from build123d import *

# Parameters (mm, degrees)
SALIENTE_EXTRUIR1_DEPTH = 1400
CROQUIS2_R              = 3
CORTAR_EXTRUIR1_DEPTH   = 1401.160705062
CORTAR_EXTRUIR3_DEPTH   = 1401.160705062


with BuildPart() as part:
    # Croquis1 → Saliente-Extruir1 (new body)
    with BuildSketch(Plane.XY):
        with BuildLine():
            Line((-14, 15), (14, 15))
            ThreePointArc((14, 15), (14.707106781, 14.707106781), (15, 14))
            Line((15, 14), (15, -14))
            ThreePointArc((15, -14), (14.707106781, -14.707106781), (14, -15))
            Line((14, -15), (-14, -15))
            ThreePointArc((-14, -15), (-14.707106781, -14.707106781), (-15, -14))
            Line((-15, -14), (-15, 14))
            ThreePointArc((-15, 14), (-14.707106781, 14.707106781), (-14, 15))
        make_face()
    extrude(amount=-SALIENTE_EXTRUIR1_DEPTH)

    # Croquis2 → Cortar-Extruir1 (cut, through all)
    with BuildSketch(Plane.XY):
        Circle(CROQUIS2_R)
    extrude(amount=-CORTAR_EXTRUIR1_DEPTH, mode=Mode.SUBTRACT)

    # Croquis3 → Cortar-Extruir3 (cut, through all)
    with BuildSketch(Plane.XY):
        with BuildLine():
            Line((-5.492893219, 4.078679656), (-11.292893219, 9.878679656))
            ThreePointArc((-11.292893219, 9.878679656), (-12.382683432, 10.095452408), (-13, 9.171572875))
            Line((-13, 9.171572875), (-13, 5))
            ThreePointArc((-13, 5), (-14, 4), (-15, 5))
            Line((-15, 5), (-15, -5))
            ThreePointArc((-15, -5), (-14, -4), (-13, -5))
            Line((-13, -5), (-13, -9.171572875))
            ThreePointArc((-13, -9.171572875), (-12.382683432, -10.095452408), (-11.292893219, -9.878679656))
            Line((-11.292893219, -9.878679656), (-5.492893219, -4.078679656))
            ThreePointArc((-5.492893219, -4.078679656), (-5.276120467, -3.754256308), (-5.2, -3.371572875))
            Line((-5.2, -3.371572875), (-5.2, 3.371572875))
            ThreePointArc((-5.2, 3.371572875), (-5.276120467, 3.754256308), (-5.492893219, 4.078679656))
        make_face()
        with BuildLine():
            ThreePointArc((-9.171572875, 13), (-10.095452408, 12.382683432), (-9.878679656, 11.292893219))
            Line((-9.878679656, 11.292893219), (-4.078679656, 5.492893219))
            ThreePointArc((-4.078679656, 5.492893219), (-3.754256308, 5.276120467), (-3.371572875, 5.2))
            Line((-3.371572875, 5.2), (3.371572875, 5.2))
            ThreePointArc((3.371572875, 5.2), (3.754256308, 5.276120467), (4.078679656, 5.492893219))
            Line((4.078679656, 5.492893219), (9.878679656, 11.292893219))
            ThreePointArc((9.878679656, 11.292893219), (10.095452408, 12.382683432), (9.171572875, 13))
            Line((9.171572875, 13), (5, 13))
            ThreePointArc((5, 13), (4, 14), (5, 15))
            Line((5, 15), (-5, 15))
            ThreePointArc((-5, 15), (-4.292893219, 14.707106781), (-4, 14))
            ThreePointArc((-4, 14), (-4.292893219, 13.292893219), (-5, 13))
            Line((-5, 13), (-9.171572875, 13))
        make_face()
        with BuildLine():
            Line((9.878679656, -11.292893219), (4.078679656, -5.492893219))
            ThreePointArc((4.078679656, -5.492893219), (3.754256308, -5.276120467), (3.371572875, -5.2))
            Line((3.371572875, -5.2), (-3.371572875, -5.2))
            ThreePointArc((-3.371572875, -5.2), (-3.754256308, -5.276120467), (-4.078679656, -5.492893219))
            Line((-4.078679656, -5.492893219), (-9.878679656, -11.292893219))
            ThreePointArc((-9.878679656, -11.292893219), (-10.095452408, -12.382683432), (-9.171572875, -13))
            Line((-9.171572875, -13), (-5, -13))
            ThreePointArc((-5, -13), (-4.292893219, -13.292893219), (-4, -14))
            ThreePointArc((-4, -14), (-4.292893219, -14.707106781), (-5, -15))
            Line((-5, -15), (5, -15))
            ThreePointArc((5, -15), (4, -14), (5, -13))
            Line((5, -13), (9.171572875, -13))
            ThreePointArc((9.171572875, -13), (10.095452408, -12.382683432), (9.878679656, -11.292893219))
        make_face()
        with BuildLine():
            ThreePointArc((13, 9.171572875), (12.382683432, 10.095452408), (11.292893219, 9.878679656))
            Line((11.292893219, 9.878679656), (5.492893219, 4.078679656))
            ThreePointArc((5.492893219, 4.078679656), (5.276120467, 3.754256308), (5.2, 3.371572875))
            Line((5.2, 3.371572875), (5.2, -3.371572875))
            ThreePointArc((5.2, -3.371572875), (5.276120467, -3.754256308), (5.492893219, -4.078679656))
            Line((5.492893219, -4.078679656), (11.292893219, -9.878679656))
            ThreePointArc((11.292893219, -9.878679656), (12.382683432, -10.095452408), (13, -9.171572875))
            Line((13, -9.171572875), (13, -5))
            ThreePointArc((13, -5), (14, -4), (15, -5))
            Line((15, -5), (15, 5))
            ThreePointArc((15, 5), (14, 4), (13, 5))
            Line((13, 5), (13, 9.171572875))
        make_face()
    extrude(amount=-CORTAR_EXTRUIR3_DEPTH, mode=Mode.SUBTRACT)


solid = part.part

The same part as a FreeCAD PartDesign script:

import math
import FreeCAD as App
import Part
import Sketcher
from FreeCAD import Vector
Q = App.Units.Quantity

doc = App.newDocument("Part")
body = doc.addObject("PartDesign::Body", "Body")

# Sketch on XY plane
sketch1 = body.newObject("Sketcher::SketchObject", "Sketch")
sketch1.AttachmentSupport = (doc.getObject("XY_Plane"), [""])
sketch1.MapMode = "FlatFace"
sketch1.addGeometry([
    Part.LineSegment(Vector(14, 15, 0), Vector(-14, 15, 0)),  # 0
    Part.ArcOfCircle(Part.Circle(Vector(-14, 14, 0), Vector(0, 0, 1), 1), math.radians(90), math.radians(180)),  # 1
    Part.LineSegment(Vector(-15, 14, 0), Vector(-15, -14, 0)),  # 2
    Part.ArcOfCircle(Part.Circle(Vector(-14, -14, 0), Vector(0, 0, 1), 1), math.radians(-180), math.radians(-90)),  # 3
    Part.LineSegment(Vector(-14, -15, 0), Vector(14, -15, 0)),  # 4
    Part.ArcOfCircle(Part.Circle(Vector(14, -14, 0), Vector(0, 0, 1), 1), math.radians(-90), math.radians(0)),  # 5
    Part.LineSegment(Vector(15, -14, 0), Vector(15, 14, 0)),  # 6
    Part.ArcOfCircle(Part.Circle(Vector(14, 14, 0), Vector(0, 0, 1), 1), math.radians(0), math.radians(90)),  # 7
], False)
sketch1.addConstraint([
    Sketcher.Constraint("Tangent", 0, 2, 1, 1),
    Sketcher.Constraint("Tangent", 1, 2, 2, 1),
    Sketcher.Constraint("Tangent", 2, 2, 3, 1),
    Sketcher.Constraint("Tangent", 3, 2, 4, 1),
    Sketcher.Constraint("Tangent", 4, 2, 5, 1),
    Sketcher.Constraint("Tangent", 5, 2, 6, 1),
    Sketcher.Constraint("Tangent", 6, 2, 7, 1),
    Sketcher.Constraint("Tangent", 7, 2, 0, 1),
    Sketcher.Constraint("Horizontal", 0),
    Sketcher.Constraint("Vertical", 2),
    Sketcher.Constraint("Horizontal", 4),
    Sketcher.Constraint("Vertical", 6),
    Sketcher.Constraint("Equal", 1, 3),
    Sketcher.Constraint("Equal", 3, 5),
    Sketcher.Constraint("Equal", 5, 7),
    Sketcher.Constraint("Symmetric", 1, 3, 5, 3, -1, 1),
    Sketcher.Constraint("Equal", 4, 2),
    Sketcher.Constraint("Radius", 1, Q("1 mm")),
    Sketcher.Constraint("DistanceX", 0, 2, 0, 1, Q("28 mm")),
])
pad1 = body.newObject("PartDesign::Pad", "Pad")
pad1.Profile = sketch1
pad1.Length = 1400
pad1.Reversed = True

# Sketch on XY plane
sketch2 = body.newObject("Sketcher::SketchObject", "Sketch001")
sketch2.AttachmentSupport = (doc.getObject("XY_Plane"), [""])
sketch2.MapMode = "FlatFace"
sketch2.addGeometry(Part.Circle(Vector(0, 0, 0), Vector(0, 0, 1), 3), False)
sketch2.addConstraint([
    Sketcher.Constraint("Coincident", 0, 3, -1, 1),
    Sketcher.Constraint("Diameter", 0, Q("6 mm")),
])
pocket1 = body.newObject("PartDesign::Pocket", "Pocket")
pocket1.Profile = sketch2
pocket1.Type = "ThroughAll"

# Sketch on XY plane
sketch3 = body.newObject("Sketcher::SketchObject", "Sketch002")
sketch3.AttachmentSupport = (doc.getObject("XY_Plane"), [""])
sketch3.MapMode = "FlatFace"
sketch3.addGeometry([
    Part.LineSegment(Vector(-5.5, 4.1, 0), Vector(-11.3, 9.9, 0)),  # 0
    Part.ArcOfCircle(Part.Circle(Vector(-12, 9.2, 0), Vector(0, 0, 1), 1), math.radians(45), math.radians(180)),  # 1
    Part.LineSegment(Vector(-13, 9.2, 0), Vector(-13, 5, 0)),  # 2
    Part.ArcOfCircle(Part.Circle(Vector(-14, 5, 0), Vector(0, 0, 1), 1), math.radians(180), math.radians(360)),  # 3
    Part.LineSegment(Vector(-15, 5, 0), Vector(-15, -5, 0)),  # 4
    Part.ArcOfCircle(Part.Circle(Vector(-14, -5, 0), Vector(0, 0, 1), 1), math.radians(0), math.radians(180)),  # 5
    Part.LineSegment(Vector(-13, -5, 0), Vector(-13, -9.2, 0)),  # 6
    Part.ArcOfCircle(Part.Circle(Vector(-12, -9.2, 0), Vector(0, 0, 1), 1), math.radians(180), math.radians(315)),  # 7
    Part.LineSegment(Vector(-11.3, -9.9, 0), Vector(-5.5, -4.1, 0)),  # 8
    Part.ArcOfCircle(Part.Circle(Vector(-6.2, -3.4, 0), Vector(0, 0, 1), 1), math.radians(-45), math.radians(0)),  # 9
    Part.LineSegment(Vector(-5.2, -3.4, 0), Vector(-5.2, 3.4, 0)),  # 10
    Part.ArcOfCircle(Part.Circle(Vector(-6.2, 3.4, 0), Vector(0, 0, 1), 1), math.radians(0), math.radians(45)),  # 11
    Part.ArcOfCircle(Part.Circle(Vector(-9.2, 12, 0), Vector(0, 0, 1), 1), math.radians(90), math.radians(225)),  # 12
    Part.LineSegment(Vector(-9.9, 11.3, 0), Vector(-4.1, 5.5, 0)),  # 13
    Part.ArcOfCircle(Part.Circle(Vector(-3.4, 6.2, 0), Vector(0, 0, 1), 1), math.radians(-135), math.radians(-90)),  # 14
    Part.LineSegment(Vector(-3.4, 5.2, 0), Vector(3.4, 5.2, 0)),  # 15
    Part.ArcOfCircle(Part.Circle(Vector(3.4, 6.2, 0), Vector(0, 0, 1), 1), math.radians(-90), math.radians(-45)),  # 16
    Part.LineSegment(Vector(4.1, 5.5, 0), Vector(9.9, 11.3, 0)),  # 17
    Part.ArcOfCircle(Part.Circle(Vector(9.2, 12, 0), Vector(0, 0, 1), 1), math.radians(-45), math.radians(90)),  # 18
    Part.LineSegment(Vector(9.2, 13, 0), Vector(5, 13, 0)),  # 19
    Part.ArcOfCircle(Part.Circle(Vector(5, 14, 0), Vector(0, 0, 1), 1), math.radians(90), math.radians(270)),  # 20
    Part.LineSegment(Vector(5, 15, 0), Vector(-5, 15, 0)),  # 21
    Part.ArcOfCircle(Part.Circle(Vector(-5, 14, 0), Vector(0, 0, 1), 1), math.radians(0), math.radians(90)),  # 22
    Part.ArcOfCircle(Part.Circle(Vector(-5, 14, 0), Vector(0, 0, 1), 1), math.radians(-90), math.radians(0)),  # 23
    Part.LineSegment(Vector(-5, 13, 0), Vector(-9.2, 13, 0)),  # 24
    Part.LineSegment(Vector(9.9, -11.3, 0), Vector(4.1, -5.5, 0)),  # 25
    Part.ArcOfCircle(Part.Circle(Vector(3.4, -6.2, 0), Vector(0, 0, 1), 1), math.radians(45), math.radians(90)),  # 26
    Part.LineSegment(Vector(3.4, -5.2, 0), Vector(-3.4, -5.2, 0)),  # 27
    Part.ArcOfCircle(Part.Circle(Vector(-3.4, -6.2, 0), Vector(0, 0, 1), 1), math.radians(90), math.radians(135)),  # 28
    Part.LineSegment(Vector(-4.1, -5.5, 0), Vector(-9.9, -11.3, 0)),  # 29
    Part.ArcOfCircle(Part.Circle(Vector(-9.2, -12, 0), Vector(0, 0, 1), 1), math.radians(135), math.radians(270)),  # 30
    Part.LineSegment(Vector(-9.2, -13, 0), Vector(-5, -13, 0)),  # 31
    Part.ArcOfCircle(Part.Circle(Vector(-5, -14, 0), Vector(0, 0, 1), 1), math.radians(0), math.radians(90)),  # 32
    Part.ArcOfCircle(Part.Circle(Vector(-5, -14, 0), Vector(0, 0, 1), 1), math.radians(-90), math.radians(0)),  # 33
    Part.LineSegment(Vector(-5, -15, 0), Vector(5, -15, 0)),  # 34
    Part.ArcOfCircle(Part.Circle(Vector(5, -14, 0), Vector(0, 0, 1), 1), math.radians(90), math.radians(270)),  # 35
    Part.LineSegment(Vector(5, -13, 0), Vector(9.2, -13, 0)),  # 36
    Part.ArcOfCircle(Part.Circle(Vector(9.2, -12, 0), Vector(0, 0, 1), 1), math.radians(-90), math.radians(45)),  # 37
    Part.ArcOfCircle(Part.Circle(Vector(12, 9.2, 0), Vector(0, 0, 1), 1), math.radians(0), math.radians(135)),  # 38
    Part.LineSegment(Vector(11.3, 9.9, 0), Vector(5.5, 4.1, 0)),  # 39
    Part.ArcOfCircle(Part.Circle(Vector(6.2, 3.4, 0), Vector(0, 0, 1), 1), math.radians(135), math.radians(180)),  # 40
    Part.LineSegment(Vector(5.2, 3.4, 0), Vector(5.2, -3.4, 0)),  # 41
    Part.ArcOfCircle(Part.Circle(Vector(6.2, -3.4, 0), Vector(0, 0, 1), 1), math.radians(180), math.radians(225)),  # 42
    Part.LineSegment(Vector(5.5, -4.1, 0), Vector(11.3, -9.9, 0)),  # 43
    Part.ArcOfCircle(Part.Circle(Vector(12, -9.2, 0), Vector(0, 0, 1), 1), math.radians(-135), math.radians(0)),  # 44
    Part.LineSegment(Vector(13, -9.2, 0), Vector(13, -5, 0)),  # 45
    Part.ArcOfCircle(Part.Circle(Vector(14, -5, 0), Vector(0, 0, 1), 1), math.radians(0), math.radians(180)),  # 46
    Part.LineSegment(Vector(15, -5, 0), Vector(15, 5, 0)),  # 47
    Part.ArcOfCircle(Part.Circle(Vector(14, 5, 0), Vector(0, 0, 1), 1), math.radians(180), math.radians(360)),  # 48
    Part.LineSegment(Vector(13, 5, 0), Vector(13, 9.2, 0)),  # 49
], False)
sketch3.addConstraint([
    Sketcher.Constraint("Tangent", 0, 2, 1, 1),
    Sketcher.Constraint("Tangent", 1, 2, 2, 1),
    Sketcher.Constraint("Tangent", 2, 2, 3, 2),
    Sketcher.Constraint("Tangent", 3, 1, 4, 1),
    Sketcher.Constraint("Tangent", 4, 2, 5, 2),
    Sketcher.Constraint("Tangent", 5, 1, 6, 1),
    Sketcher.Constraint("Tangent", 6, 2, 7, 1),
    Sketcher.Constraint("Tangent", 7, 2, 8, 1),
    Sketcher.Constraint("Tangent", 8, 2, 9, 1),
    Sketcher.Constraint("Tangent", 9, 2, 10, 1),
    Sketcher.Constraint("Tangent", 10, 2, 11, 1),
    Sketcher.Constraint("Tangent", 11, 2, 0, 1),
    Sketcher.Constraint("Tangent", 12, 2, 13, 1),
    Sketcher.Constraint("Tangent", 13, 2, 14, 1),
    Sketcher.Constraint("Tangent", 14, 2, 15, 1),
    Sketcher.Constraint("Tangent", 15, 2, 16, 1),
    Sketcher.Constraint("Tangent", 16, 2, 17, 1),
    Sketcher.Constraint("Tangent", 17, 2, 18, 1),
    Sketcher.Constraint("Tangent", 18, 2, 19, 1),
    Sketcher.Constraint("Tangent", 19, 2, 20, 2),
    Sketcher.Constraint("Tangent", 20, 1, 21, 1),
    Sketcher.Constraint("Tangent", 21, 2, 22, 2),
    Sketcher.Constraint("Tangent", 22, 1, 23, 2),
    Sketcher.Constraint("Tangent", 23, 1, 24, 1),
    Sketcher.Constraint("Tangent", 24, 2, 12, 1),
    Sketcher.Constraint("Tangent", 25, 2, 26, 1),
    Sketcher.Constraint("Tangent", 26, 2, 27, 1),
    Sketcher.Constraint("Tangent", 27, 2, 28, 1),
    Sketcher.Constraint("Tangent", 28, 2, 29, 1),
    Sketcher.Constraint("Tangent", 29, 2, 30, 1),
    Sketcher.Constraint("Tangent", 30, 2, 31, 1),
    Sketcher.Constraint("Tangent", 31, 2, 32, 2),
    Sketcher.Constraint("Tangent", 32, 1, 33, 2),
    Sketcher.Constraint("Tangent", 33, 1, 34, 1),
    Sketcher.Constraint("Tangent", 34, 2, 35, 2),
    Sketcher.Constraint("Tangent", 35, 1, 36, 1),
    Sketcher.Constraint("Tangent", 36, 2, 37, 1),
    Sketcher.Constraint("Tangent", 37, 2, 25, 1),
    Sketcher.Constraint("Tangent", 38, 2, 39, 1),
    Sketcher.Constraint("Tangent", 39, 2, 40, 1),
    Sketcher.Constraint("Tangent", 40, 2, 41, 1),
    Sketcher.Constraint("Tangent", 41, 2, 42, 1),
    Sketcher.Constraint("Tangent", 42, 2, 43, 1),
    Sketcher.Constraint("Tangent", 43, 2, 44, 1),
    Sketcher.Constraint("Tangent", 44, 2, 45, 1),
    Sketcher.Constraint("Tangent", 45, 2, 46, 2),
    Sketcher.Constraint("Tangent", 46, 1, 47, 1),
    Sketcher.Constraint("Tangent", 47, 2, 48, 2),
    Sketcher.Constraint("Tangent", 48, 1, 49, 1),
    Sketcher.Constraint("Tangent", 49, 2, 38, 1),
    Sketcher.Constraint("Vertical", 2),
    Sketcher.Constraint("Vertical", 4),
    Sketcher.Constraint("Vertical", 6),
    Sketcher.Constraint("Vertical", 10),
    Sketcher.Constraint("Horizontal", 15),
    Sketcher.Constraint("Horizontal", 19),
    Sketcher.Constraint("Horizontal", 21),
    Sketcher.Constraint("Horizontal", 24),
    Sketcher.Constraint("Horizontal", 27),
    Sketcher.Constraint("Horizontal", 31),
    Sketcher.Constraint("Horizontal", 34),
    Sketcher.Constraint("Horizontal", 36),
    Sketcher.Constraint("Vertical", 41),
    Sketcher.Constraint("Vertical", 45),
    Sketcher.Constraint("Vertical", 47),
    Sketcher.Constraint("Vertical", 49),
    Sketcher.Constraint("Equal", 1, 3),
    Sketcher.Constraint("Equal", 3, 5),
    Sketcher.Constraint("Equal", 5, 7),
    Sketcher.Constraint("Equal", 7, 9),
    Sketcher.Constraint("Equal", 9, 11),
    Sketcher.Constraint("Equal", 11, 12),
    Sketcher.Constraint("Equal", 12, 14),
    Sketcher.Constraint("Equal", 14, 16),
    Sketcher.Constraint("Equal", 16, 18),
    Sketcher.Constraint("Equal", 18, 20),
    Sketcher.Constraint("Equal", 20, 22),
    Sketcher.Constraint("Equal", 22, 23),
    Sketcher.Constraint("Equal", 23, 26),
    Sketcher.Constraint("Equal", 26, 28),
    Sketcher.Constraint("Equal", 28, 30),
    Sketcher.Constraint("Equal", 30, 32),
    Sketcher.Constraint("Equal", 32, 33),
    Sketcher.Constraint("Equal", 33, 35),
    Sketcher.Constraint("Equal", 35, 37),
    Sketcher.Constraint("Equal", 37, 38),
    Sketcher.Constraint("Equal", 38, 40),
    Sketcher.Constraint("Equal", 40, 42),
    Sketcher.Constraint("Equal", 42, 44),
    Sketcher.Constraint("Equal", 44, 46),
    Sketcher.Constraint("Equal", 46, 48),
    Sketcher.Constraint("Symmetric", 14, 3, 26, 3, -1, 1),
    Sketcher.Constraint("Symmetric", 18, 3, 30, 3, -1, 1),
    Sketcher.Constraint("Symmetric", 7, 3, 38, 3, -1, 1),
    Sketcher.Constraint("Symmetric", 9, 3, 40, 3, -1, 1),
    Sketcher.Constraint("Symmetric", 11, 2, 42, 2, -1, 1),
    Sketcher.Constraint("Symmetric", 13, 2, 16, 2, -2),
    Sketcher.Constraint("Symmetric", 25, 2, 28, 2, -2),
    Sketcher.Constraint("Symmetric", 0, 2, 38, 2, -2),
    Sketcher.Constraint("Symmetric", 22, 1, 32, 1, -1),
    Sketcher.Constraint("Perpendicular", 0, 8),
    Sketcher.Constraint("Perpendicular", 8, 13),
    Sketcher.Constraint("Horizontal", 5, 3, 46, 3),
    Sketcher.Constraint("Horizontal", 3, 3, 48, 3),
    Sketcher.Constraint("Horizontal", 23, 3, 22, 1),
    Sketcher.Constraint("Vertical", 20, 3, 35, 3),
    Sketcher.Constraint("Equal", 19, 24),
    Sketcher.Constraint("Equal", 36, 2),
    Sketcher.Constraint("Equal", 34, 4),
    Sketcher.Constraint("Equal", 2, 6),
    Sketcher.Constraint("Equal", 27, 10),
    Sketcher.Constraint("Radius", 1, Q("1 mm")),
    Sketcher.Constraint("DistanceX", 21, 2, 21, 1, Q("10 mm")),
    Sketcher.Constraint("DistanceX", 1, 3, -1, 1, Q("12 mm")),
    Sketcher.Constraint("DistanceY", -1, 1, 12, 3, Q("12 mm")),
    Sketcher.Constraint("DistanceX", 9, 3, -1, 1, Q("6.2 mm")),
    Sketcher.Constraint("DistanceX", 15, 1, 15, 2, Q("6.743146 mm")),
])
pocket2 = body.newObject("PartDesign::Pocket", "Pocket001")
pocket2.Profile = sketch3
pocket2.Type = "ThroughAll"

doc.recompute()
